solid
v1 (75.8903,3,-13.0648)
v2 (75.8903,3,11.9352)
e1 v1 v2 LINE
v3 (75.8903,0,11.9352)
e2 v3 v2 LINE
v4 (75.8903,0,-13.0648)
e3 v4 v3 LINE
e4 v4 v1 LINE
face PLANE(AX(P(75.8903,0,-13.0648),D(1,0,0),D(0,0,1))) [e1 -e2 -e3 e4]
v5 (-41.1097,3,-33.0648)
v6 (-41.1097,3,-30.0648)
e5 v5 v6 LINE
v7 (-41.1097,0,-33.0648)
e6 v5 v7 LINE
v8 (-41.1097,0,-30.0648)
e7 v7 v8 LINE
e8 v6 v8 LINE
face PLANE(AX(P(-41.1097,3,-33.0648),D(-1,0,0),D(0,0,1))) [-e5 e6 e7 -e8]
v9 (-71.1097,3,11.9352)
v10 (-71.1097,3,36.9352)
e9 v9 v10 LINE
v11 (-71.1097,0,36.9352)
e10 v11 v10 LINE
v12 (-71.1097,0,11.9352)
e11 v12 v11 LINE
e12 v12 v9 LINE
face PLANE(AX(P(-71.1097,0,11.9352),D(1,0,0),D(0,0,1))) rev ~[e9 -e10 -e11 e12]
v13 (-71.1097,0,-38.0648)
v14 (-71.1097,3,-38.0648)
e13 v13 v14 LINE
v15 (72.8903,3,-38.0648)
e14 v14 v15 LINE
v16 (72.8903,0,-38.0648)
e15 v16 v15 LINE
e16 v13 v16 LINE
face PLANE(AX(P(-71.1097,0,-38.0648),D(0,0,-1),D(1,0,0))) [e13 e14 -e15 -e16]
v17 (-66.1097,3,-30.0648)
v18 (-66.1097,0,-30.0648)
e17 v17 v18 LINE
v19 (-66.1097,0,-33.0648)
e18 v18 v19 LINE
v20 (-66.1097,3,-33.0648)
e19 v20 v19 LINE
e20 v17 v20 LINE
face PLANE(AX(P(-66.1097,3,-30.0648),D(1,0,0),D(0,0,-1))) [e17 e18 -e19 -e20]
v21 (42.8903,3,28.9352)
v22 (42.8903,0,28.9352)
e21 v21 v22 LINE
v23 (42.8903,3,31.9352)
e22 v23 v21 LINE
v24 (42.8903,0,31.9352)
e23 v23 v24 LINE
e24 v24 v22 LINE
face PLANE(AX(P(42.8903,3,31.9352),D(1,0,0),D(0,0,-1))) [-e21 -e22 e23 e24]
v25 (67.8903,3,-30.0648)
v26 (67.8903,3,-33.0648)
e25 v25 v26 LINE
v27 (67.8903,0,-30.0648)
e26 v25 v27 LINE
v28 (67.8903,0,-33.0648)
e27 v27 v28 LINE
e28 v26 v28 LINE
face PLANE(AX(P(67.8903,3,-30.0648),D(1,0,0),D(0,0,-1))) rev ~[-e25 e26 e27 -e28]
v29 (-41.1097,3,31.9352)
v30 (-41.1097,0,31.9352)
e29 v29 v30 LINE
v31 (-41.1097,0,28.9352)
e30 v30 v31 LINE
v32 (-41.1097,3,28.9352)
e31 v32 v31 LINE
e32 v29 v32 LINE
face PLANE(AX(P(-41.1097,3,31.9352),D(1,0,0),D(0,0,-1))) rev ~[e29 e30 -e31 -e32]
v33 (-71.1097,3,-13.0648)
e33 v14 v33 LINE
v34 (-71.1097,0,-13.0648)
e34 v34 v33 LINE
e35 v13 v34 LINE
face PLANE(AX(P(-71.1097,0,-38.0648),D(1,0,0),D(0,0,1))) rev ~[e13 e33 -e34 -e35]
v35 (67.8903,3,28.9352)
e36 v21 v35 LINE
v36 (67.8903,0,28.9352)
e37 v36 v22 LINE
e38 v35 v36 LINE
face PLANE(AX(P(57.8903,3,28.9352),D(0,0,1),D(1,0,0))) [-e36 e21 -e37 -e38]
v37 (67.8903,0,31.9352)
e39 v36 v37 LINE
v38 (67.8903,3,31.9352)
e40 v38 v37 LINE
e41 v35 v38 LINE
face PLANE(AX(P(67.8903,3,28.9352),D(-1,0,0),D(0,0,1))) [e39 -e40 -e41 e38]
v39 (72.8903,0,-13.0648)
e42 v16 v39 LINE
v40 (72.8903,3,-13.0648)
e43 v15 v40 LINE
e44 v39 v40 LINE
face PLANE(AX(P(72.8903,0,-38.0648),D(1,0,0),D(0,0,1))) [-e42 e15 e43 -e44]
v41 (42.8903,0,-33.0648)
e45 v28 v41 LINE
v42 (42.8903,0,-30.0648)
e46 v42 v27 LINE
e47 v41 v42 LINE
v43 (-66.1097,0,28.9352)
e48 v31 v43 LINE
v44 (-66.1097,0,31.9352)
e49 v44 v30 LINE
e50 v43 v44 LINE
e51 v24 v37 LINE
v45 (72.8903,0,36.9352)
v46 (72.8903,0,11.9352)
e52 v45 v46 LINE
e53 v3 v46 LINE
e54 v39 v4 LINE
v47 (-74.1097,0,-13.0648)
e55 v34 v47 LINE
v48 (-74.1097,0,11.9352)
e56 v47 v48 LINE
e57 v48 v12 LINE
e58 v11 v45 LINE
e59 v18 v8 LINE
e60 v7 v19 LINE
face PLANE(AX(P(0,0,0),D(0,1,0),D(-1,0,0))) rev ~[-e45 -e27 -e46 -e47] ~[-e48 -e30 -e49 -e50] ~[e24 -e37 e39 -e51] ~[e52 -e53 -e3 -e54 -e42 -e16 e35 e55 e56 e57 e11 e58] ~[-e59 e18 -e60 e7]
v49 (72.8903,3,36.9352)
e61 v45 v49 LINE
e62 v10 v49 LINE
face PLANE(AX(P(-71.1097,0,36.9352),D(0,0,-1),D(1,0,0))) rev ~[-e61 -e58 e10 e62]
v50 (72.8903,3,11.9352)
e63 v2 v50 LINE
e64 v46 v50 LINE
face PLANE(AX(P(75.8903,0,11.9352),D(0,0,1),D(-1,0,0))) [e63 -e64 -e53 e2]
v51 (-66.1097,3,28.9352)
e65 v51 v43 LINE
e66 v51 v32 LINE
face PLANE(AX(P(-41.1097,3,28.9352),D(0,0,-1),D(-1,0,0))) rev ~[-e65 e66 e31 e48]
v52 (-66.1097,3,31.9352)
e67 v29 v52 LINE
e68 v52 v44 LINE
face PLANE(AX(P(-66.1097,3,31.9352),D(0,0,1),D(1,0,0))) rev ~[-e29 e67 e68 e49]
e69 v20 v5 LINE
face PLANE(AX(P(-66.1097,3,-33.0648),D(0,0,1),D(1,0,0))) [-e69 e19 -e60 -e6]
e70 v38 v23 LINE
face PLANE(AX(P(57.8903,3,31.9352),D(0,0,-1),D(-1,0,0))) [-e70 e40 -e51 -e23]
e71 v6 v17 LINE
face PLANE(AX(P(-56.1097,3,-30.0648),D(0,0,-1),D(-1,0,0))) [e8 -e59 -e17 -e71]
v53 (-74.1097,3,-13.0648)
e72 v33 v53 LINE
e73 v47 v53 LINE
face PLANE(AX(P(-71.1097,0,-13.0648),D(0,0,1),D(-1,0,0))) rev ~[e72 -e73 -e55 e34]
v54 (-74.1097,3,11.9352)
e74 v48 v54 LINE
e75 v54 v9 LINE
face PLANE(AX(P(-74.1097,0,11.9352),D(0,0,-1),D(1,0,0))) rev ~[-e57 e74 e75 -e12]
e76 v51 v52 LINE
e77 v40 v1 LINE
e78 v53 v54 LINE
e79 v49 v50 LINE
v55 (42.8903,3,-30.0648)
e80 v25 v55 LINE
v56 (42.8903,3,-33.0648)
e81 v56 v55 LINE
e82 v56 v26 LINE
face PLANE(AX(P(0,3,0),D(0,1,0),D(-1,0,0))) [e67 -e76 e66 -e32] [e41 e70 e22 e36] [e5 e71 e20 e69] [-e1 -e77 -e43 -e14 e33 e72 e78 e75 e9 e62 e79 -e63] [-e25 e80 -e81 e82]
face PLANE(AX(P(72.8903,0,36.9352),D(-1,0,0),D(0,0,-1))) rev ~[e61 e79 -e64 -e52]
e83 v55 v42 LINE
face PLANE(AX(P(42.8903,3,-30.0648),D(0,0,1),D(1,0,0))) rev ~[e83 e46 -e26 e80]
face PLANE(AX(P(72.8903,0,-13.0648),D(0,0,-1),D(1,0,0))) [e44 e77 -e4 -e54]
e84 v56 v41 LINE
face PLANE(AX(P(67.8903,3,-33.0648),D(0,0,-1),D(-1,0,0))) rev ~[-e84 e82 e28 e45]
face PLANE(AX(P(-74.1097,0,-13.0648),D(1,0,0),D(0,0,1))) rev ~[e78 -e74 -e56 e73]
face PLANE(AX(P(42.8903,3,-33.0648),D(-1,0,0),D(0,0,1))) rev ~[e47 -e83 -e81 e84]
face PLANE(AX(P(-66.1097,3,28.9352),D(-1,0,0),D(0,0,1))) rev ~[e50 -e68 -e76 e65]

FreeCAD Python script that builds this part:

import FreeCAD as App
import Part
import Sketcher
Q = App.Units.Quantity

doc = App.newDocument("Part")
body = doc.addObject("PartDesign::Body", "Body")

# Sketch on XZ plane
sketch1 = body.newObject("Sketcher::SketchObject", "Sketch")
sketch1.AttachmentSupport = (doc.getObject("XZ_Plane"), [""])
sketch1.MapMode = "FlatFace"
sketch1.addGeometry(Part.LineSegment(App.Vector(72.8903, -38.0648, 0), App.Vector(-71.1097, -38.0648, 0)), False)
sketch1.addGeometry(Part.LineSegment(App.Vector(-71.1097, -38.0648, 0), App.Vector(-71.1097, -13.0648, 0)), False)
sketch1.addGeometry(Part.LineSegment(App.Vector(-71.1097, -13.0648, 0), App.Vector(-74.1097, -13.0648, 0)), False)
sketch1.addGeometry(Part.LineSegment(App.Vector(-74.1097, -13.0648, 0), App.Vector(-74.1097, 11.9352, 0)), False)
sketch1.addGeometry(Part.LineSegment(App.Vector(-74.1097, 11.9352, 0), App.Vector(-71.1097, 11.9352, 0)), False)
sketch1.addGeometry(Part.LineSegment(App.Vector(-71.1097, 11.9352, 0), App.Vector(-71.1097, 36.9352, 0)), False)
sketch1.addGeometry(Part.LineSegment(App.Vector(-71.1097, 36.9352, 0), App.Vector(72.8903, 36.9352, 0)), False)
sketch1.addGeometry(Part.LineSegment(App.Vector(72.8903, 36.9352, 0), App.Vector(72.8903, 11.9352, 0)), False)
sketch1.addGeometry(Part.LineSegment(App.Vector(72.8903, 11.9352, 0), App.Vector(75.8903, 11.9352, 0)), False)
sketch1.addGeometry(Part.LineSegment(App.Vector(75.8903, 11.9352, 0), App.Vector(75.8903, -13.0648, 0)), False)
sketch1.addGeometry(Part.LineSegment(App.Vector(75.8903, -13.0648, 0), App.Vector(72.8903, -13.0648, 0)), False)
sketch1.addGeometry(Part.LineSegment(App.Vector(72.8903, -13.0648, 0), App.Vector(72.8903, -38.0648, 0)), False)
sketch1.addConstraint(Sketcher.Constraint("Coincident", 0, 2, 1, 1))
sketch1.addConstraint(Sketcher.Constraint("Coincident", 1, 2, 2, 1))
sketch1.addConstraint(Sketcher.Constraint("Coincident", 2, 2, 3, 1))
sketch1.addConstraint(Sketcher.Constraint("Coincident", 3, 2, 4, 1))
sketch1.addConstraint(Sketcher.Constraint("Coincident", 4, 2, 5, 1))
sketch1.addConstraint(Sketcher.Constraint("Coincident", 5, 2, 6, 1))
sketch1.addConstraint(Sketcher.Constraint("Coincident", 6, 2, 7, 1))
sketch1.addConstraint(Sketcher.Constraint("Coincident", 7, 2, 8, 1))
sketch1.addConstraint(Sketcher.Constraint("Coincident", 8, 2, 9, 1))
sketch1.addConstraint(Sketcher.Constraint("Coincident", 9, 2, 10, 1))
sketch1.addConstraint(Sketcher.Constraint("Coincident", 10, 2, 11, 1))
sketch1.addConstraint(Sketcher.Constraint("Coincident", 11, 2, 0, 1))
sketch1.addConstraint(Sketcher.Constraint("Horizontal", 0))
sketch1.addConstraint(Sketcher.Constraint("Vertical", 1))
sketch1.addConstraint(Sketcher.Constraint("Horizontal", 2))
sketch1.addConstraint(Sketcher.Constraint("Vertical", 3))
sketch1.addConstraint(Sketcher.Constraint("Horizontal", 4))
sketch1.addConstraint(Sketcher.Constraint("Vertical", 5))
sketch1.addConstraint(Sketcher.Constraint("Horizontal", 6))
sketch1.addConstraint(Sketcher.Constraint("Vertical", 7))
sketch1.addConstraint(Sketcher.Constraint("Horizontal", 8))
sketch1.addConstraint(Sketcher.Constraint("Vertical", 9))
sketch1.addConstraint(Sketcher.Constraint("Horizontal", 10))
sketch1.addConstraint(Sketcher.Constraint("Vertical", 11))
sketch1.addConstraint(Sketcher.Constraint("Horizontal", 4, 2, 7, 2))
sketch1.addConstraint(Sketcher.Constraint("Horizontal", 2, 2, 9, 2))
sketch1.addConstraint(Sketcher.Constraint("Vertical", 1, 2, 4, 2))
sketch1.addConstraint(Sketcher.Constraint("Vertical", 7, 2, 10, 2))
sketch1.addConstraint(Sketcher.Constraint("Equal", 4, 8))
sketch1.addConstraint(Sketcher.Constraint("Equal", 1, 3))
sketch1.addConstraint(Sketcher.Constraint("Equal", 3, 5))
sketch1.addConstraint(Sketcher.Constraint("DistanceX", 0, 2, 0, 1, Q("144 mm")))
sketch1.addConstraint(Sketcher.Constraint("DistanceX", 2, 2, 2, 1, Q("3 mm")))
sketch1.addConstraint(Sketcher.Constraint("DistanceY", 1, 1, 1, 2, Q("25 mm")))
sketch1.addConstraint(Sketcher.Constraint("DistanceX", 0, 2, -1, 1, Q("71.1097 mm")))
sketch1.addConstraint(Sketcher.Constraint("DistanceY", 0, 2, -1, 1, Q("38.0648 mm")))
pad1 = body.newObject("PartDesign::Pad", "Pad")
pad1.Profile = sketch1
pad1.Length = 3
pad1.Reversed = True

# Sketch on XZ plane
sketch2 = body.newObject("Sketcher::SketchObject", "Sketch001")
sketch2.AttachmentSupport = (doc.getObject("XZ_Plane"), [""])
sketch2.MapMode = "FlatFace"
sketch2.AttachmentOffset = App.Placement(App.Vector(0, 0, -3), App.Rotation())
sketch2.addGeometry(Part.LineSegment(App.Vector(-66.1097, 28.9352, 0), App.Vector(-66.1097, 31.9352, 0)), False)
sketch2.addGeometry(Part.LineSegment(App.Vector(-66.1097, 31.9352, 0), App.Vector(-56.1097, 31.9352, 0)), False)
sketch2.addGeometry(Part.LineSegment(App.Vector(-56.1097, 31.9352, 0), App.Vector(-56.1097, 28.9352, 0)), False)
sketch2.addGeometry(Part.LineSegment(App.Vector(-56.1097, 28.9352, 0), App.Vector(-66.1097, 28.9352, 0)), False)
sketch2.addGeometry(Part.LineSegment(App.Vector(-66.1097, -30.0648, 0), App.Vector(-56.1097, -30.0648, 0)), False)
sketch2.addGeometry(Part.LineSegment(App.Vector(-56.1097, -30.0648, 0), App.Vector(-56.1097, -33.0648, 0)), False)
sketch2.addGeometry(Part.LineSegment(App.Vector(-56.1097, -33.0648, 0), App.Vector(-66.1097, -33.0648, 0)), False)
sketch2.addGeometry(Part.LineSegment(App.Vector(-66.1097, -33.0648, 0), App.Vector(-66.1097, -30.0648, 0)), False)
sketch2.addGeometry(Part.LineSegment(App.Vector(67.8903, -30.0648, 0), App.Vector(67.8903, -33.0648, 0)), False)
sketch2.addGeometry(Part.LineSegment(App.Vector(67.8903, -33.0648, 0), App.Vector(57.8903, -33.0648, 0)), False)
sketch2.addGeometry(Part.LineSegment(App.Vector(57.8903, -33.0648, 0), App.Vector(57.8903, -30.0648, 0)), False)
sketch2.addGeometry(Part.LineSegment(App.Vector(57.8903, -30.0648, 0), App.Vector(67.8903, -30.0648, 0)), False)
sketch2.addGeometry(Part.LineSegment(App.Vector(57.8903, 31.9352, 0), App.Vector(67.8903, 31.9352, 0)), False)
sketch2.addGeometry(Part.LineSegment(App.Vector(67.8903, 31.9352, 0), App.Vector(67.8903, 28.9352, 0)), False)
sketch2.addGeometry(Part.LineSegment(App.Vector(67.8903, 28.9352, 0), App.Vector(57.8903, 28.9352, 0)), False)
sketch2.addGeometry(Part.LineSegment(App.Vector(57.8903, 28.9352, 0), App.Vector(57.8903, 31.9352, 0)), False)
sketch2.addConstraint(Sketcher.Constraint("Coincident", 0, 2, 1, 1))
sketch2.addConstraint(Sketcher.Constraint("Coincident", 1, 2, 2, 1))
sketch2.addConstraint(Sketcher.Constraint("Coincident", 2, 2, 3, 1))
sketch2.addConstraint(Sketcher.Constraint("Coincident", 3, 2, 0, 1))
sketch2.addConstraint(Sketcher.Constraint("Coincident", 4, 2, 5, 1))
sketch2.addConstraint(Sketcher.Constraint("Coincident", 5, 2, 6, 1))
sketch2.addConstraint(Sketcher.Constraint("Coincident", 6, 2, 7, 1))
sketch2.addConstraint(Sketcher.Constraint("Coincident", 7, 2, 4, 1))
sketch2.addConstraint(Sketcher.Constraint("Coincident", 8, 2, 9, 1))
sketch2.addConstraint(Sketcher.Constraint("Coincident", 9, 2, 10, 1))
sketch2.addConstraint(Sketcher.Constraint("Coincident", 10, 2, 11, 1))
sketch2.addConstraint(Sketcher.Constraint("Coincident", 11, 2, 8, 1))
sketch2.addConstraint(Sketcher.Constraint("Coincident", 12, 2, 13, 1))
sketch2.addConstraint(Sketcher.Constraint("Coincident", 13, 2, 14, 1))
sketch2.addConstraint(Sketcher.Constraint("Coincident", 14, 2, 15, 1))
sketch2.addConstraint(Sketcher.Constraint("Coincident", 15, 2, 12, 1))
sketch2.addConstraint(Sketcher.Constraint("Vertical", 0))
sketch2.addConstraint(Sketcher.Constraint("Horizontal", 1))
sketch2.addConstraint(Sketcher.Constraint("Vertical", 2))
sketch2.addConstraint(Sketcher.Constraint("Horizontal", 3))
sketch2.addConstraint(Sketcher.Constraint("Horizontal", 4))
sketch2.addConstraint(Sketcher.Constraint("Vertical", 5))
sketch2.addConstraint(Sketcher.Constraint("Horizontal", 6))
sketch2.addConstraint(Sketcher.Constraint("Vertical", 7))
sketch2.addConstraint(Sketcher.Constraint("Vertical", 8))
sketch2.addConstraint(Sketcher.Constraint("Horizontal", 9))
sketch2.addConstraint(Sketcher.Constraint("Vertical", 10))
sketch2.addConstraint(Sketcher.Constraint("Horizontal", 11))
sketch2.addConstraint(Sketcher.Constraint("Horizontal", 12))
sketch2.addConstraint(Sketcher.Constraint("Vertical", 13))
sketch2.addConstraint(Sketcher.Constraint("Horizontal", 14))
sketch2.addConstraint(Sketcher.Constraint("Vertical", 15))
sketch2.addConstraint(Sketcher.Constraint("Horizontal", 6, 2, 8, 2))
sketch2.addConstraint(Sketcher.Constraint("Horizontal", 7, 2, 10, 2))
sketch2.addConstraint(Sketcher.Constraint("Horizontal", 1, 2, 12, 2))
sketch2.addConstraint(Sketcher.Constraint("Horizontal", 3, 2, 13, 2))
sketch2.addConstraint(Sketcher.Constraint("Vertical", 2, 2, 4, 2))
sketch2.addConstraint(Sketcher.Constraint("Vertical", 3, 2, 6, 2))
sketch2.addConstraint(Sketcher.Constraint("Vertical", 11, 2, 12, 2))
sketch2.addConstraint(Sketcher.Constraint("Vertical", 10, 2, 14, 2))
sketch2.addConstraint(Sketcher.Constraint("Equal", 6, 9))
sketch2.addConstraint(Sketcher.Constraint("Equal", 2, 5))
sketch2.addConstraint(Sketcher.Constraint("DistanceX", 1, 1, 1, 2, Q("10 mm")))
sketch2.addConstraint(Sketcher.Constraint("DistanceY", 0, 1, 0, 2, Q("3 mm")))
sketch2.addConstraint(Sketcher.Constraint("DistanceY", 4, 2, 2, 2, Q("59 mm")))
sketch2.addConstraint(Sketcher.Constraint("DistanceX", 5, 2, 8, 2, Q("124 mm")))
sketch2.addConstraint(Sketcher.Constraint("DistanceX", 0, 2, -1, 1, Q("66.1097 mm")))
sketch2.addConstraint(Sketcher.Constraint("DistanceY", -1, 1, 0, 2, Q("31.9352 mm")))
pocket1 = body.newObject("PartDesign::Pocket", "Pocket")
pocket1.Profile = sketch2
pocket1.Length = 30
pocket1.Reversed = True

# Sketch on XZ plane
sketch3 = body.newObject("Sketcher::SketchObject", "Sketch002")
sketch3.AttachmentSupport = (doc.getObject("XZ_Plane"), [""])
sketch3.MapMode = "FlatFace"
sketch3.AttachmentOffset = App.Placement(App.Vector(0, 0, -3), App.Rotation())
sketch3.addGeometry(Part.Circle(App.Vector(-14.1097, -28.0648, 0), App.Vector(0, 0, 1), 5), False)
sketch3.addGeometry(Part.Circle(App.Vector(15.8903, -28.0648, 0), App.Vector(0, 0, 1), 5), False)
sketch3.addGeometry(Part.Circle(App.Vector(-14.1097, 26.9352, 0), App.Vector(0, 0, 1), 5), False)
sketch3.addGeometry(Part.Circle(App.Vector(15.8903, 26.9352, 0), App.Vector(0, 0, 1), 5), False)
sketch3.addConstraint(Sketcher.Constraint("Equal", 0, 1))
sketch3.addConstraint(Sketcher.Constraint("Equal", 1, 2))
sketch3.addConstraint(Sketcher.Constraint("Equal", 2, 3))
sketch3.addConstraint(Sketcher.Constraint("Horizontal", 0, 3, 1, 3))
sketch3.addConstraint(Sketcher.Constraint("Horizontal", 2, 3, 3, 3))
sketch3.addConstraint(Sketcher.Constraint("Vertical", 0, 3, 2, 3))
sketch3.addConstraint(Sketcher.Constraint("Vertical", 1, 3, 3, 3))
sketch3.addConstraint(Sketcher.Constraint("Diameter", 0, Q("10 mm")))
sketch3.addConstraint(Sketcher.Constraint("DistanceX", 0, 3, 1, 3, Q("30 mm")))
sketch3.addConstraint(Sketcher.Constraint("DistanceY", 0, 3, 2, 3, Q("55 mm")))
sketch3.addConstraint(Sketcher.Constraint("DistanceX", 0, 3, -1, 1, Q("14.1097 mm")))
sketch3.addConstraint(Sketcher.Constraint("DistanceY", 0, 3, -1, 1, Q("28.0648 mm")))
pocket2 = body.newObject("PartDesign::Pocket", "Pocket001")
pocket2.Profile = sketch3
pocket2.Length = 30
pocket2.Reversed = True

# Sketch on XZ plane
sketch4 = body.newObject("Sketcher::SketchObject", "Sketch003")
sketch4.AttachmentSupport = (doc.getObject("XZ_Plane"), [""])
sketch4.MapMode = "FlatFace"
sketch4.AttachmentOffset = App.Placement(App.Vector(0, 0, -3), App.Rotation())
sketch4.addGeometry(Part.LineSegment(App.Vector(-41.1097, -33.0648, 0), App.Vector(-56.1097, -33.0648, 0)), False)
sketch4.addGeometry(Part.LineSegment(App.Vector(-56.1097, -33.0648, 0), App.Vector(-56.1097, -30.0648, 0)), False)
sketch4.addGeometry(Part.LineSegment(App.Vector(-56.1097, -30.0648, 0), App.Vector(-41.1097, -30.0648, 0)), False)
sketch4.addGeometry(Part.LineSegment(App.Vector(-41.1097, -30.0648, 0), App.Vector(-41.1097, -33.0648, 0)), False)
sketch4.addGeometry(Part.LineSegment(App.Vector(57.8903, -30.0648, 0), App.Vector(57.8903, -33.0648, 0)), False)
sketch4.addGeometry(Part.LineSegment(App.Vector(57.8903, -33.0648, 0), App.Vector(42.8903, -33.0648, 0)), False)
sketch4.addGeometry(Part.LineSegment(App.Vector(42.8903, -33.0648, 0), App.Vector(42.8903, -30.0648, 0)), False)
sketch4.addGeometry(Part.LineSegment(App.Vector(42.8903, -30.0648, 0), App.Vector(57.8903, -30.0648, 0)), False)
sketch4.addGeometry(Part.LineSegment(App.Vector(-56.1097, 28.9352, 0), App.Vector(-56.1097, 31.9352, 0)), False)
sketch4.addGeometry(Part.LineSegment(App.Vector(-56.1097, 31.9352, 0), App.Vector(-41.1097, 31.9352, 0)), False)
sketch4.addGeometry(Part.LineSegment(App.Vector(-41.1097, 31.9352, 0), App.Vector(-41.1097, 28.9352, 0)), False)
sketch4.addGeometry(Part.LineSegment(App.Vector(-41.1097, 28.9352, 0), App.Vector(-56.1097, 28.9352, 0)), False)
sketch4.addGeometry(Part.LineSegment(App.Vector(42.8903, 31.9352, 0), App.Vector(57.8903, 31.9352, 0)), False)
sketch4.addGeometry(Part.LineSegment(App.Vector(57.8903, 31.9352, 0), App.Vector(57.8903, 28.9352, 0)), False)
sketch4.addGeometry(Part.LineSegment(App.Vector(57.8903, 28.9352, 0), App.Vector(42.8903, 28.9352, 0)), False)
sketch4.addGeometry(Part.LineSegment(App.Vector(42.8903, 28.9352, 0), App.Vector(42.8903, 31.9352, 0)), False)
sketch4.addConstraint(Sketcher.Constraint("Coincident", 0, 2, 1, 1))
sketch4.addConstraint(Sketcher.Constraint("Coincident", 1, 2, 2, 1))
sketch4.addConstraint(Sketcher.Constraint("Coincident", 2, 2, 3, 1))
sketch4.addConstraint(Sketcher.Constraint("Coincident", 3, 2, 0, 1))
sketch4.addConstraint(Sketcher.Constraint("Coincident", 4, 2, 5, 1))
sketch4.addConstraint(Sketcher.Constraint("Coincident", 5, 2, 6, 1))
sketch4.addConstraint(Sketcher.Constraint("Coincident", 6, 2, 7, 1))
sketch4.addConstraint(Sketcher.Constraint("Coincident", 7, 2, 4, 1))
sketch4.addConstraint(Sketcher.Constraint("Coincident", 8, 2, 9, 1))
sketch4.addConstraint(Sketcher.Constraint("Coincident", 9, 2, 10, 1))
sketch4.addConstraint(Sketcher.Constraint("Coincident", 10, 2, 11, 1))
sketch4.addConstraint(Sketcher.Constraint("Coincident", 11, 2, 8, 1))
sketch4.addConstraint(Sketcher.Constraint("Coincident", 12, 2, 13, 1))
sketch4.addConstraint(Sketcher.Constraint("Coincident", 13, 2, 14, 1))
sketch4.addConstraint(Sketcher.Constraint("Coincident", 14, 2, 15, 1))
sketch4.addConstraint(Sketcher.Constraint("Coincident", 15, 2, 12, 1))
sketch4.addConstraint(Sketcher.Constraint("Horizontal", 0))
sketch4.addConstraint(Sketcher.Constraint("Vertical", 1))
sketch4.addConstraint(Sketcher.Constraint("Horizontal", 2))
sketch4.addConstraint(Sketcher.Constraint("Vertical", 3))
sketch4.addConstraint(Sketcher.Constraint("Vertical", 4))
sketch4.addConstraint(Sketcher.Constraint("Horizontal", 5))
sketch4.addConstraint(Sketcher.Constraint("Vertical", 6))
sketch4.addConstraint(Sketcher.Constraint("Horizontal", 7))
sketch4.addConstraint(Sketcher.Constraint("Vertical", 8))
sketch4.addConstraint(Sketcher.Constraint("Horizontal", 9))
sketch4.addConstraint(Sketcher.Constraint("Vertical", 10))
sketch4.addConstraint(Sketcher.Constraint("Horizontal", 11))
sketch4.addConstraint(Sketcher.Constraint("Horizontal", 12))
sketch4.addConstraint(Sketcher.Constraint("Vertical", 13))
sketch4.addConstraint(Sketcher.Constraint("Horizontal", 14))
sketch4.addConstraint(Sketcher.Constraint("Vertical", 15))
sketch4.addConstraint(Sketcher.Constraint("Horizontal", 3, 2, 4, 2))
sketch4.addConstraint(Sketcher.Constraint("Horizontal", 2, 2, 6, 2))
sketch4.addConstraint(Sketcher.Constraint("Horizontal", 9, 2, 12, 2))
sketch4.addConstraint(Sketcher.Constraint("Horizontal", 11, 2, 13, 2))
sketch4.addConstraint(Sketcher.Constraint("Vertical", 1, 2, 8, 2))
sketch4.addConstraint(Sketcher.Constraint("Vertical", 3, 2, 9, 2))
sketch4.addConstraint(Sketcher.Constraint("Vertical", 7, 2, 12, 2))
sketch4.addConstraint(Sketcher.Constraint("Vertical", 6, 2, 14, 2))
sketch4.addConstraint(Sketcher.Constraint("Equal", 2, 5))
sketch4.addConstraint(Sketcher.Constraint("Equal", 6, 8))
sketch4.addConstraint(Sketcher.Constraint("DistanceX", 0, 2, 0, 1, Q("15 mm")))
sketch4.addConstraint(Sketcher.Constraint("DistanceY", 1, 1, 1, 2, Q("3 mm")))
sketch4.addConstraint(Sketcher.Constraint("DistanceX", 3, 2, 4, 2, Q("99 mm")))
sketch4.addConstraint(Sketcher.Constraint("DistanceY", 1, 2, 8, 2, Q("62 mm")))
sketch4.addConstraint(Sketcher.Constraint("DistanceX", 0, 2, -1, 1, Q("56.1097 mm")))
sketch4.addConstraint(Sketcher.Constraint("DistanceY", 0, 2, -1, 1, Q("33.0648 mm")))
pocket3 = body.newObject("PartDesign::Pocket", "Pocket002")
pocket3.Profile = sketch4
pocket3.Length = 10
pocket3.Reversed = True

# Sketch on XZ plane
sketch5 = body.newObject("Sketcher::SketchObject", "Sketch004")
sketch5.AttachmentSupport = (doc.getObject("XZ_Plane"), [""])
sketch5.MapMode = "FlatFace"
sketch5.AttachmentOffset = App.Placement(App.Vector(0, 0, -3), App.Rotation())
sketch5.addGeometry(Part.Circle(App.Vector(-14.1097, -28.0648, 0), App.Vector(0, 0, 1), 5), False)
sketch5.addGeometry(Part.Circle(App.Vector(15.8903, -28.0648, 0), App.Vector(0, 0, 1), 5), False)
sketch5.addGeometry(Part.Circle(App.Vector(15.8903, 26.9352, 0), App.Vector(0, 0, 1), 5), False)
sketch5.addGeometry(Part.Circle(App.Vector(-14.1097, 26.9352, 0), App.Vector(0, 0, 1), 5), False)
sketch5.addConstraint(Sketcher.Constraint("Equal", 0, 1))
sketch5.addConstraint(Sketcher.Constraint("Equal", 1, 2))
sketch5.addConstraint(Sketcher.Constraint("Equal", 2, 3))
sketch5.addConstraint(Sketcher.Constraint("Horizontal", 0, 3, 1, 3))
sketch5.addConstraint(Sketcher.Constraint("Horizontal", 2, 3, 3, 3))
sketch5.addConstraint(Sketcher.Constraint("Vertical", 1, 3, 2, 3))
sketch5.addConstraint(Sketcher.Constraint("Vertical", 0, 3, 3, 3))
sketch5.addConstraint(Sketcher.Constraint("Diameter", 0, Q("10 mm")))
sketch5.addConstraint(Sketcher.Constraint("DistanceX", 0, 3, 1, 3, Q("30 mm")))
sketch5.addConstraint(Sketcher.Constraint("DistanceY", 1, 3, 2, 3, Q("55 mm")))
sketch5.addConstraint(Sketcher.Constraint("DistanceX", 0, 3, -1, 1, Q("14.1097 mm")))
sketch5.addConstraint(Sketcher.Constraint("DistanceY", 0, 3, -1, 1, Q("28.0648 mm")))
pad2 = body.newObject("PartDesign::Pad", "Pad001")
pad2.Profile = sketch5
pad2.Length = 3

doc.recompute()
